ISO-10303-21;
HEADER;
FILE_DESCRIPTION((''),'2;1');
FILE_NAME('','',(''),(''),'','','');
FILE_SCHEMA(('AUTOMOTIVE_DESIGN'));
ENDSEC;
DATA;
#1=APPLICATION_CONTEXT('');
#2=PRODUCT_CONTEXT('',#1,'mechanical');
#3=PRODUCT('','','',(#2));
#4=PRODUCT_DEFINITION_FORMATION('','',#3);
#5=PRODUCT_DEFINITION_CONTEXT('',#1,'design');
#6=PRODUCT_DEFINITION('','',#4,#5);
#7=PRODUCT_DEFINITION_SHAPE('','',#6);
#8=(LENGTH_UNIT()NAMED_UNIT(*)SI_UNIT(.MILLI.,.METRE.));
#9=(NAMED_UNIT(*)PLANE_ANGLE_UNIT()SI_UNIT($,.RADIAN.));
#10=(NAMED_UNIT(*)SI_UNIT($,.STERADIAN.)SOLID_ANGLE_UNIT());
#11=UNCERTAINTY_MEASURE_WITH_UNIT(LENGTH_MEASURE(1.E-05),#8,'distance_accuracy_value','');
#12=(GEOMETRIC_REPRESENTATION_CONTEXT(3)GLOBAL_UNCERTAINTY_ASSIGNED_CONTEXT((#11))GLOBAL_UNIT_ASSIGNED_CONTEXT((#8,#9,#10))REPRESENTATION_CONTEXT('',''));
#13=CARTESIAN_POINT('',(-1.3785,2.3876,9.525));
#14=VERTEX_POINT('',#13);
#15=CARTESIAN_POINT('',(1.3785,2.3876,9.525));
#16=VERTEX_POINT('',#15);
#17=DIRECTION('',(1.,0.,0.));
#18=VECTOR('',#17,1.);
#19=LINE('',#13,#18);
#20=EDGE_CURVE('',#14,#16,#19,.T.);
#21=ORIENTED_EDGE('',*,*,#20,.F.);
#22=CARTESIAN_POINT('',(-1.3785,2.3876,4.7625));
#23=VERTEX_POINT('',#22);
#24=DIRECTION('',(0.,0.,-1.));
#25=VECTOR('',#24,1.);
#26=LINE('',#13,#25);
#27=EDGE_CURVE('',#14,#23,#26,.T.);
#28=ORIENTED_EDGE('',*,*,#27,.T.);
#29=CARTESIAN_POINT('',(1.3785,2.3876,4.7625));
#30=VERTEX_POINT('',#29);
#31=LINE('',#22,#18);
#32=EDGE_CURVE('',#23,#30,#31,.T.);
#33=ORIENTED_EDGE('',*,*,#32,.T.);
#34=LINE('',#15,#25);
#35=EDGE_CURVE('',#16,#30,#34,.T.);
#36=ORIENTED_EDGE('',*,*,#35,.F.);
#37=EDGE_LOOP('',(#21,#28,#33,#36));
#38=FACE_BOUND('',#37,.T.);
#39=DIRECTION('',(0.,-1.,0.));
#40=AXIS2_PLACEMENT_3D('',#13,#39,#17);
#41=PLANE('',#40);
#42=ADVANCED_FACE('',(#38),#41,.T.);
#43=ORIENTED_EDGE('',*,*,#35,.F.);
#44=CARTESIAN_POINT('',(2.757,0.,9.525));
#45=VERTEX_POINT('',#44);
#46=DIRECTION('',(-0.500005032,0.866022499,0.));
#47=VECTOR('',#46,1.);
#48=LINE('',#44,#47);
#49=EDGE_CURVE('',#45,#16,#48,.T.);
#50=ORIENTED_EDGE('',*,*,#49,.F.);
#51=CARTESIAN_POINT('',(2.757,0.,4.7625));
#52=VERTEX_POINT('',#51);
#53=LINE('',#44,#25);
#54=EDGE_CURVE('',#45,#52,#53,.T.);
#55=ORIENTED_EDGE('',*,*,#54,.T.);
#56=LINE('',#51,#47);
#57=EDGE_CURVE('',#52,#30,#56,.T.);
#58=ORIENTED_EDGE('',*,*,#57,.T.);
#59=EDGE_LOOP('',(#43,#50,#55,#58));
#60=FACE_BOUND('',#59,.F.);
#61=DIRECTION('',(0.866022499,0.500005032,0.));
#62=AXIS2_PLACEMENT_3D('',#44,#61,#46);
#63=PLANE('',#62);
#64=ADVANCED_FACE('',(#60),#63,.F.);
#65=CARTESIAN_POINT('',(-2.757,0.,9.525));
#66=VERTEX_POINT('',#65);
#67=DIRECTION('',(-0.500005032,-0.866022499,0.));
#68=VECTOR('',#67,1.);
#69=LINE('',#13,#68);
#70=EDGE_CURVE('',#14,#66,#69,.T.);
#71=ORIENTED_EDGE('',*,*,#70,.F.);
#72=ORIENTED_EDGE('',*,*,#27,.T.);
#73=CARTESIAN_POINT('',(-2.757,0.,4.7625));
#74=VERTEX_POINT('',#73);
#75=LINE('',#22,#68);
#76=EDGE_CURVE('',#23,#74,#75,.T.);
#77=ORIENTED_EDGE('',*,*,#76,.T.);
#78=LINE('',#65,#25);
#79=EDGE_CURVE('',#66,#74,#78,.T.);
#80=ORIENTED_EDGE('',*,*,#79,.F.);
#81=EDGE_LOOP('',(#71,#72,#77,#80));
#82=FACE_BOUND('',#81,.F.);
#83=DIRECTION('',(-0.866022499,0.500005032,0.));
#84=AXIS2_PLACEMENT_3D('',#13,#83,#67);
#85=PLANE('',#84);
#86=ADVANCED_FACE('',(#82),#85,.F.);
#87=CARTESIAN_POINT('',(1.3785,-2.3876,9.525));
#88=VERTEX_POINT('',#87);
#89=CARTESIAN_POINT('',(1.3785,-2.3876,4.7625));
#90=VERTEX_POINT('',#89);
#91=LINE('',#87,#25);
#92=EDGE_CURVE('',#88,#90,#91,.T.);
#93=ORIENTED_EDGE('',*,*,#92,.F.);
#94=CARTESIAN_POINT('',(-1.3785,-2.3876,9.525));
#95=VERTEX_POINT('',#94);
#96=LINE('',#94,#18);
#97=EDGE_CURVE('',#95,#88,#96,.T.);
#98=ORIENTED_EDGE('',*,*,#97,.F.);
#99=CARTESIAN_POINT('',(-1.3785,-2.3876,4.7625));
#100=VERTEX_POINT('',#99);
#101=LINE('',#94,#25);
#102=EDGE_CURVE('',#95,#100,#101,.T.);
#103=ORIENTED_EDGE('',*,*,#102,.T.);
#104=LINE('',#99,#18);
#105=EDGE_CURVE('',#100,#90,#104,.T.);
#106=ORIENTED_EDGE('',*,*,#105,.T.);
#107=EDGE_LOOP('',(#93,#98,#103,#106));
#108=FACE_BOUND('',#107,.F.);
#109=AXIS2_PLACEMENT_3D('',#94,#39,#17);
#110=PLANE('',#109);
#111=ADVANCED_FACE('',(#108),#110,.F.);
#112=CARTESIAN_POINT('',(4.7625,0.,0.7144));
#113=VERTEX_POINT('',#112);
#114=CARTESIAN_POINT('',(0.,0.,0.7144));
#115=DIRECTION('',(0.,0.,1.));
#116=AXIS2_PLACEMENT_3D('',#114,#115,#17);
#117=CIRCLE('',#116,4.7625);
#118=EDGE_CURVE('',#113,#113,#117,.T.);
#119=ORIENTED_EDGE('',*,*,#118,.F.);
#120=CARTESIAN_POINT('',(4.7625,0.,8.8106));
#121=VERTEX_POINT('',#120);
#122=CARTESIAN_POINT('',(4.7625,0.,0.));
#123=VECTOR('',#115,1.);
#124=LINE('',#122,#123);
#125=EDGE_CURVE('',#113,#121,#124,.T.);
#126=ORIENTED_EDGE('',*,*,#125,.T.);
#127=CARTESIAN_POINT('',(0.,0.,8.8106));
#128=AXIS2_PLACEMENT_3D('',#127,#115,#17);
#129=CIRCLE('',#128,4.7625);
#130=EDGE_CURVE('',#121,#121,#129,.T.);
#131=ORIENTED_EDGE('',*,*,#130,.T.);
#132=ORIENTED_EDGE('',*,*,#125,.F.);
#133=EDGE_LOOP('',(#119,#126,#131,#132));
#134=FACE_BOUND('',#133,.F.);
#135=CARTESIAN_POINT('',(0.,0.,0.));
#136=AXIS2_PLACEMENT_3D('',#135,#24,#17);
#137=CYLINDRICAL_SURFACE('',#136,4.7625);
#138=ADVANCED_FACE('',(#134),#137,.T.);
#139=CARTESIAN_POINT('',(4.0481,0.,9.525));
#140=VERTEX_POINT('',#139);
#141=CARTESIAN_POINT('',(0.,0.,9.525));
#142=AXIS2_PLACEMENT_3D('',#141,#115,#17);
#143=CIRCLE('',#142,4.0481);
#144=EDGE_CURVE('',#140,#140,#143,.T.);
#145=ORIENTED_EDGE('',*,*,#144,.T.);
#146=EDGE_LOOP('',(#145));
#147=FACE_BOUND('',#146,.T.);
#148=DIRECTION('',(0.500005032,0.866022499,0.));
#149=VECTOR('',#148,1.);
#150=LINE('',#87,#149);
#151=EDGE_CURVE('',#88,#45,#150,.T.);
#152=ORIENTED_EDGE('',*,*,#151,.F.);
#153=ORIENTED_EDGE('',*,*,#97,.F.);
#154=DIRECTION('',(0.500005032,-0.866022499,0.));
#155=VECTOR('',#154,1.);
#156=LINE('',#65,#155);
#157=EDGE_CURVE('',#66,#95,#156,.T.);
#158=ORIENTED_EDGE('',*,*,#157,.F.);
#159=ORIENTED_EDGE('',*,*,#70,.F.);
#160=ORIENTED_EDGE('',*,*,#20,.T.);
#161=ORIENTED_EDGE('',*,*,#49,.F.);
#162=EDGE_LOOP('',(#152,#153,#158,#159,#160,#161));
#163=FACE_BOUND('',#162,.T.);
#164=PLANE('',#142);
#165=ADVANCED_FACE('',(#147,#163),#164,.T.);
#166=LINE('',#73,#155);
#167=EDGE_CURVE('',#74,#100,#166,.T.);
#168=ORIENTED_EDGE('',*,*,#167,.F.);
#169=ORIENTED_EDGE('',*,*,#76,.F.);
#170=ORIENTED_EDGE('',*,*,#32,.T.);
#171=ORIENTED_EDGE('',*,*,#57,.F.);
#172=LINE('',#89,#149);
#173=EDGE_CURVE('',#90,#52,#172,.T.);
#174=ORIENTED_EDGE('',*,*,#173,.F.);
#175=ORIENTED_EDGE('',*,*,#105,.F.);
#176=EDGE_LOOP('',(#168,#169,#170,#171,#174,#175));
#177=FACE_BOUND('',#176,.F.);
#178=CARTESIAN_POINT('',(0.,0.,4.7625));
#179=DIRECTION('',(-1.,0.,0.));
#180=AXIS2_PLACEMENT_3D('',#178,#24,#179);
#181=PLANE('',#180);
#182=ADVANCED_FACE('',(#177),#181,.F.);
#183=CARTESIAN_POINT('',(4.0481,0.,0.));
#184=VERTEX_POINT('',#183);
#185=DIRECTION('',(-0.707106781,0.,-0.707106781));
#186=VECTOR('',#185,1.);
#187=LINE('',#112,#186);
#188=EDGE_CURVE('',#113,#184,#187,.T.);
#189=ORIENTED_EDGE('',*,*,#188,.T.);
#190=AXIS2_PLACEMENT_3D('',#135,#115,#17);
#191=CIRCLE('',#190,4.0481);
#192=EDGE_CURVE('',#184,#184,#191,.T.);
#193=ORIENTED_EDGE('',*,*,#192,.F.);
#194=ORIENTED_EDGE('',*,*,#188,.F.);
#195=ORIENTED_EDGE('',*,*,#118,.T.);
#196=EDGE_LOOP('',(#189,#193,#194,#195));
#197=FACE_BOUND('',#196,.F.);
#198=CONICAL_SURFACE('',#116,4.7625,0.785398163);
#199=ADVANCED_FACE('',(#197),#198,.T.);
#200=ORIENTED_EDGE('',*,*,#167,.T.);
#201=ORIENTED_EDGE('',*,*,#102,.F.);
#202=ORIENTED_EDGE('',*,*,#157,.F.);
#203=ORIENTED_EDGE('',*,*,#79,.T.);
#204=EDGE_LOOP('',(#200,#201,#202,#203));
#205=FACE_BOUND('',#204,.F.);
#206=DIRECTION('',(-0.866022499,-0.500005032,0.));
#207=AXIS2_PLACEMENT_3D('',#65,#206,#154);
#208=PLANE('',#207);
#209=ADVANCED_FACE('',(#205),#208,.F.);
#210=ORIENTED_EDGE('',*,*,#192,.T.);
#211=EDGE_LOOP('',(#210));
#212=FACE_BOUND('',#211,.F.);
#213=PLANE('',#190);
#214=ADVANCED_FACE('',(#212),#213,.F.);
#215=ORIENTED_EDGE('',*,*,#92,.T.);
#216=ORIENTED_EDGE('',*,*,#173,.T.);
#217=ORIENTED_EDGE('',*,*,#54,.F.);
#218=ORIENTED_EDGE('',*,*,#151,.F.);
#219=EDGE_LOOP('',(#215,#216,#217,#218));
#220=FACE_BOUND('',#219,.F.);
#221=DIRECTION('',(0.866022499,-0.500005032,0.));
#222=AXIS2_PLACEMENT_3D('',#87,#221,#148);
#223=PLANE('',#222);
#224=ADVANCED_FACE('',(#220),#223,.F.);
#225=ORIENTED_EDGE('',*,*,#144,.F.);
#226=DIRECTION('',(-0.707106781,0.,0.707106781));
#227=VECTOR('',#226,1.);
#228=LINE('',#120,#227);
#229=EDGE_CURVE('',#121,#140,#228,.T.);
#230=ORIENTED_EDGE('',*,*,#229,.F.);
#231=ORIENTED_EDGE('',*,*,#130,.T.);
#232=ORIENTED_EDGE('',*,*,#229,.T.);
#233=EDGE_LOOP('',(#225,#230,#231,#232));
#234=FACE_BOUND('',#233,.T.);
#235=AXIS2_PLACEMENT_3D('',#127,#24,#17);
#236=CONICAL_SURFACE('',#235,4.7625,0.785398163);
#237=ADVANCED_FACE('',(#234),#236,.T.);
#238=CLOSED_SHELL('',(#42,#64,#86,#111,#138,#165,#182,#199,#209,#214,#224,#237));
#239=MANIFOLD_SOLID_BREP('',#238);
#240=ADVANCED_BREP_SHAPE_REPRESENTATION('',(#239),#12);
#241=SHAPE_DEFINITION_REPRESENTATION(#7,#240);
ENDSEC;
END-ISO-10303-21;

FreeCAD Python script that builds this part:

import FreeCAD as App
import Part
import Sketcher
from FreeCAD import Vector
Q = App.Units.Quantity


def edges_at(feature, points):
    """Names of the edges that pass closest to the given points."""
    edges = feature.Shape.Edges
    near = lambda p: min(range(len(edges)), key=lambda i: edges[i].distToShape(Part.Vertex(*p))[0])
    return sorted({f"Edge{near(p) + 1}" for p in points})


def add_polygon(sketch, points):
    """Adds a closed chain of lines whose ends are joined by coincident constraints."""
    first, n = sketch.GeometryCount, len(points)
    for a, b in zip(points, points[1:] + points[:1]):
        sketch.addGeometry(Part.LineSegment(App.Vector(*a, 0), App.Vector(*b, 0)), False)
    for i in range(n):
        sketch.addConstraint(Sketcher.Constraint("Coincident", first + i, 2, first + (i + 1) % n, 1))

doc = App.newDocument("Part")
body = doc.addObject("PartDesign::Body", "Body")

# Sketch on XY plane
sketch1 = doc.addObject("Sketcher::SketchObject", "Sketch")
body.addObject(sketch1)
sketch1.AttachmentSupport = (doc.XY_Plane, [""])
sketch1.MapMode = "FlatFace"
sketch1.addGeometry(Part.Circle(Vector(0, 0, 0), Vector(0, 0, 1), 4.8), False)
sketch1.addConstraint(Sketcher.Constraint("Coincident", 0, 3, -1, 1))
sketch1.addConstraint(Sketcher.Constraint("Diameter", 0, Q("0.375 in")))
pad1 = doc.addObject("PartDesign::Pad", "Pad")
body.addObject(pad1)
pad1.Profile = sketch1
pad1.Length = Q("0.375 in")
doc.recompute()

chamfer = doc.addObject("PartDesign::Chamfer", "Chamfer")
body.addObject(chamfer)
chamfer.Base = (pad1, edges_at(pad1, [(-4.763, 0, 0), (-4.763, 0, 9.525)]))
chamfer.Size = 0.7144

# Sketch on XY plane
sketch2 = doc.addObject("Sketcher::SketchObject", "Sketch001")
body.addObject(sketch2)
sketch2.AttachmentSupport = (doc.XY_Plane, [""])
sketch2.MapMode = "FlatFace"
sketch2.AttachmentOffset = App.Placement(Vector(0, 0, 0.375 * 25.4), App.Rotation())
add_polygon(sketch2, [(1.4, 2.4), (-1.4, 2.4), (-2.8, 0), (-1.4, -2.4), (1.4, -2.4), (2.8, 0)])  # lines 0-5
sketch2.addConstraint(Sketcher.Constraint("Horizontal", 0))
sketch2.addConstraint(Sketcher.Constraint("Horizontal", 3))
sketch2.addConstraint(Sketcher.Constraint("Symmetric", 0, 2, 3, 2, -1, 1))
sketch2.addConstraint(Sketcher.Constraint("Symmetric", 1, 2, 4, 2, -1, 1))
sketch2.addConstraint(Sketcher.Constraint("PointOnObject", 1, 2, -1))
sketch2.addConstraint(Sketcher.Constraint("Parallel", 2, 5))
sketch2.addConstraint(Sketcher.Constraint("Vertical", 0, 2, 2, 2))
sketch2.addConstraint(Sketcher.Constraint("Angle", 1, Q("-120.0003 deg")))
sketch2.addConstraint(Sketcher.Constraint("DistanceY", -1, 1, 0, 2, Q("0.094 in")))
sketch2.addConstraint(Sketcher.Constraint("DistanceX", 0, 2, 0, 1, 2.757))
pocket1 = doc.addObject("PartDesign::Pocket", "Pocket")
body.addObject(pocket1)
pocket1.Profile = sketch2
pocket1.Length = Q("0.1875 in")

doc.recompute()
